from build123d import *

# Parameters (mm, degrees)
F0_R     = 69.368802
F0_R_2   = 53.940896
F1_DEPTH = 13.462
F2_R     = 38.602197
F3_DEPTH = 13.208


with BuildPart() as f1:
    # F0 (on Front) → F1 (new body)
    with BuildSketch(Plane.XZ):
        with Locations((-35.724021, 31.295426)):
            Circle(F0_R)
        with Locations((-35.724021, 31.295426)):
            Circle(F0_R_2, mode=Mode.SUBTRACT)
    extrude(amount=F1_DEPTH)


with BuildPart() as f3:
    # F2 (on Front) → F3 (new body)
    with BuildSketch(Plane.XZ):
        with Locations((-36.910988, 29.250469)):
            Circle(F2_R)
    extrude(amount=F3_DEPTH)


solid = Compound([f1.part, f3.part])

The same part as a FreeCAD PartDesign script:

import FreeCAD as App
import Part
import Sketcher
Q = App.Units.Quantity

doc = App.newDocument("Part")
params = doc.addObject("Spreadsheet::Sheet", "Params")
for row, (alias, value) in enumerate([
    ("pad1_length", "0.53 in"),
    ("pad2_length", "0.52 in"),
], start=1):
    params.set(f"A{row}", alias)
    params.set(f"B{row}", "=" + value)
    params.setAlias(f"B{row}", alias)

body = doc.addObject("PartDesign::Body", "Body")

sketch1 = doc.addObject("Sketcher::SketchObject", "Sketch")
body.addObject(sketch1)
sketch1.AttachmentSupport = (doc.XZ_Plane, [""])
sketch1.MapMode = "FlatFace"
sketch1.addGeometry([
    Part.Circle(App.Vector(-36, 31, 0), App.Vector(0, 0, 1), 69),
    Part.Circle(App.Vector(-36, 31, 0), App.Vector(0, 0, 1), 54),
], False)
sketch1.addConstraint([
    Sketcher.Constraint("Coincident", 1, 3, 0, 3),
    Sketcher.Constraint("Diameter", 0, Q("138.737604 mm")),
    Sketcher.Constraint("Diameter", 1, Q("107.881792 mm")),
    Sketcher.Constraint("DistanceX", 0, 3, -1, 1, Q("35.724021 mm")),
    Sketcher.Constraint("DistanceY", -1, 1, 0, 3, Q("31.295426 mm")),
])
pad1 = doc.addObject("PartDesign::Pad", "Pad")
body.addObject(pad1)
pad1.Profile = sketch1
pad1.setExpression("Length", "Params.pad1_length")
body2 = doc.addObject("PartDesign::Body", "Body001")

sketch2 = doc.addObject("Sketcher::SketchObject", "Sketch001")
body2.addObject(sketch2)
sketch2.AttachmentSupport = (doc.getObject("XZ_Plane001"), [""])
sketch2.MapMode = "FlatFace"
sketch2.addGeometry(Part.Circle(App.Vector(-37, 29, 0), App.Vector(0, 0, 1), 39), False)
sketch2.addConstraint([
    Sketcher.Constraint("Diameter", 0, Q("77.204394 mm")),
    Sketcher.Constraint("DistanceX", 0, 3, -1, 1, Q("36.910988 mm")),
    Sketcher.Constraint("DistanceY", -1, 1, 0, 3, Q("29.250469 mm")),
])
pad2 = doc.addObject("PartDesign::Pad", "Pad001")
body2.addObject(pad2)
pad2.Profile = sketch2
pad2.setExpression("Length", "Params.pad2_length")

doc.recompute()
